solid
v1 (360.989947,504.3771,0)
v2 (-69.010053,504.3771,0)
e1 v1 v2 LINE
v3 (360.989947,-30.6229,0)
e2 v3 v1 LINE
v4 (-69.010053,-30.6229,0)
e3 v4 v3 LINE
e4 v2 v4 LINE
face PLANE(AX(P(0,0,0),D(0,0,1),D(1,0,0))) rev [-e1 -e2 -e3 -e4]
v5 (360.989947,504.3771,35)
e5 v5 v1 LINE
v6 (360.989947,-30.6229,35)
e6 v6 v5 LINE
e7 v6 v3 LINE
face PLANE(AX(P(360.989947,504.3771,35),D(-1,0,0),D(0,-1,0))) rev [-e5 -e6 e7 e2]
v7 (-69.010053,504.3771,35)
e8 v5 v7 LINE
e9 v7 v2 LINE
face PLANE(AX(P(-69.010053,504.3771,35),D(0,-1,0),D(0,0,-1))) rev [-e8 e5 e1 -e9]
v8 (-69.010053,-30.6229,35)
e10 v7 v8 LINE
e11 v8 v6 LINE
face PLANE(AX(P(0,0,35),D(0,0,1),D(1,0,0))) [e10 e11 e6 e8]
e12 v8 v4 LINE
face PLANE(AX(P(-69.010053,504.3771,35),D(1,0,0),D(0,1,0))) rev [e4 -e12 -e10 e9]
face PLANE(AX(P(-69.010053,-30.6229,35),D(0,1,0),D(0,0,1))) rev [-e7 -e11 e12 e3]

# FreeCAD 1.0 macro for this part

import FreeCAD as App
import Part
import Sketcher
from FreeCAD import Vector

doc = App.newDocument("Part")
body = doc.addObject("PartDesign::Body", "Body")

# Sketch on XY plane
sketch1 = body.newObject("Sketcher::SketchObject", "Sketch")
sketch1.AttachmentSupport = (doc.getObject("XY_Plane"), [""])
sketch1.MapMode = "FlatFace"
sketch1.addGeometry([
    Part.LineSegment(Vector(-69.010053, 504.3771, 0), Vector(-69.010053, -30.6229, 0)),
    Part.LineSegment(Vector(-69.010053, -30.6229, 0), Vector(360.989947, -30.6229, 0)),
    Part.LineSegment(Vector(360.989947, -30.6229, 0), Vector(360.989947, 504.3771, 0)),
    Part.LineSegment(Vector(360.989947, 504.3771, 0), Vector(-69.010053, 504.3771, 0)),
], False)
sketch1.addConstraint([
    Sketcher.Constraint("Coincident", 0, 2, 1, 1),
    Sketcher.Constraint("Coincident", 1, 2, 2, 1),
    Sketcher.Constraint("Coincident", 2, 2, 3, 1),
    Sketcher.Constraint("Coincident", 3, 2, 0, 1),
    Sketcher.Constraint("Vertical", 0),
    Sketcher.Constraint("Horizontal", 1),
    Sketcher.Constraint("Vertical", 2),
    Sketcher.Constraint("Horizontal", 3),
    Sketcher.Constraint("DistanceX", 1, 1, 1, 2, 430.0),
    Sketcher.Constraint("DistanceY", 0, 2, 0, 1, 535.0),
    Sketcher.Constraint("DistanceY", 0, 2, -1, 1, 30.6229),
    Sketcher.Constraint("DistanceX", 0, 2, -1, 1, 69.010053),
])
pad1 = body.newObject("PartDesign::Pad", "Pad")
pad1.Profile = sketch1
pad1.Length = 35

doc.recompute()
